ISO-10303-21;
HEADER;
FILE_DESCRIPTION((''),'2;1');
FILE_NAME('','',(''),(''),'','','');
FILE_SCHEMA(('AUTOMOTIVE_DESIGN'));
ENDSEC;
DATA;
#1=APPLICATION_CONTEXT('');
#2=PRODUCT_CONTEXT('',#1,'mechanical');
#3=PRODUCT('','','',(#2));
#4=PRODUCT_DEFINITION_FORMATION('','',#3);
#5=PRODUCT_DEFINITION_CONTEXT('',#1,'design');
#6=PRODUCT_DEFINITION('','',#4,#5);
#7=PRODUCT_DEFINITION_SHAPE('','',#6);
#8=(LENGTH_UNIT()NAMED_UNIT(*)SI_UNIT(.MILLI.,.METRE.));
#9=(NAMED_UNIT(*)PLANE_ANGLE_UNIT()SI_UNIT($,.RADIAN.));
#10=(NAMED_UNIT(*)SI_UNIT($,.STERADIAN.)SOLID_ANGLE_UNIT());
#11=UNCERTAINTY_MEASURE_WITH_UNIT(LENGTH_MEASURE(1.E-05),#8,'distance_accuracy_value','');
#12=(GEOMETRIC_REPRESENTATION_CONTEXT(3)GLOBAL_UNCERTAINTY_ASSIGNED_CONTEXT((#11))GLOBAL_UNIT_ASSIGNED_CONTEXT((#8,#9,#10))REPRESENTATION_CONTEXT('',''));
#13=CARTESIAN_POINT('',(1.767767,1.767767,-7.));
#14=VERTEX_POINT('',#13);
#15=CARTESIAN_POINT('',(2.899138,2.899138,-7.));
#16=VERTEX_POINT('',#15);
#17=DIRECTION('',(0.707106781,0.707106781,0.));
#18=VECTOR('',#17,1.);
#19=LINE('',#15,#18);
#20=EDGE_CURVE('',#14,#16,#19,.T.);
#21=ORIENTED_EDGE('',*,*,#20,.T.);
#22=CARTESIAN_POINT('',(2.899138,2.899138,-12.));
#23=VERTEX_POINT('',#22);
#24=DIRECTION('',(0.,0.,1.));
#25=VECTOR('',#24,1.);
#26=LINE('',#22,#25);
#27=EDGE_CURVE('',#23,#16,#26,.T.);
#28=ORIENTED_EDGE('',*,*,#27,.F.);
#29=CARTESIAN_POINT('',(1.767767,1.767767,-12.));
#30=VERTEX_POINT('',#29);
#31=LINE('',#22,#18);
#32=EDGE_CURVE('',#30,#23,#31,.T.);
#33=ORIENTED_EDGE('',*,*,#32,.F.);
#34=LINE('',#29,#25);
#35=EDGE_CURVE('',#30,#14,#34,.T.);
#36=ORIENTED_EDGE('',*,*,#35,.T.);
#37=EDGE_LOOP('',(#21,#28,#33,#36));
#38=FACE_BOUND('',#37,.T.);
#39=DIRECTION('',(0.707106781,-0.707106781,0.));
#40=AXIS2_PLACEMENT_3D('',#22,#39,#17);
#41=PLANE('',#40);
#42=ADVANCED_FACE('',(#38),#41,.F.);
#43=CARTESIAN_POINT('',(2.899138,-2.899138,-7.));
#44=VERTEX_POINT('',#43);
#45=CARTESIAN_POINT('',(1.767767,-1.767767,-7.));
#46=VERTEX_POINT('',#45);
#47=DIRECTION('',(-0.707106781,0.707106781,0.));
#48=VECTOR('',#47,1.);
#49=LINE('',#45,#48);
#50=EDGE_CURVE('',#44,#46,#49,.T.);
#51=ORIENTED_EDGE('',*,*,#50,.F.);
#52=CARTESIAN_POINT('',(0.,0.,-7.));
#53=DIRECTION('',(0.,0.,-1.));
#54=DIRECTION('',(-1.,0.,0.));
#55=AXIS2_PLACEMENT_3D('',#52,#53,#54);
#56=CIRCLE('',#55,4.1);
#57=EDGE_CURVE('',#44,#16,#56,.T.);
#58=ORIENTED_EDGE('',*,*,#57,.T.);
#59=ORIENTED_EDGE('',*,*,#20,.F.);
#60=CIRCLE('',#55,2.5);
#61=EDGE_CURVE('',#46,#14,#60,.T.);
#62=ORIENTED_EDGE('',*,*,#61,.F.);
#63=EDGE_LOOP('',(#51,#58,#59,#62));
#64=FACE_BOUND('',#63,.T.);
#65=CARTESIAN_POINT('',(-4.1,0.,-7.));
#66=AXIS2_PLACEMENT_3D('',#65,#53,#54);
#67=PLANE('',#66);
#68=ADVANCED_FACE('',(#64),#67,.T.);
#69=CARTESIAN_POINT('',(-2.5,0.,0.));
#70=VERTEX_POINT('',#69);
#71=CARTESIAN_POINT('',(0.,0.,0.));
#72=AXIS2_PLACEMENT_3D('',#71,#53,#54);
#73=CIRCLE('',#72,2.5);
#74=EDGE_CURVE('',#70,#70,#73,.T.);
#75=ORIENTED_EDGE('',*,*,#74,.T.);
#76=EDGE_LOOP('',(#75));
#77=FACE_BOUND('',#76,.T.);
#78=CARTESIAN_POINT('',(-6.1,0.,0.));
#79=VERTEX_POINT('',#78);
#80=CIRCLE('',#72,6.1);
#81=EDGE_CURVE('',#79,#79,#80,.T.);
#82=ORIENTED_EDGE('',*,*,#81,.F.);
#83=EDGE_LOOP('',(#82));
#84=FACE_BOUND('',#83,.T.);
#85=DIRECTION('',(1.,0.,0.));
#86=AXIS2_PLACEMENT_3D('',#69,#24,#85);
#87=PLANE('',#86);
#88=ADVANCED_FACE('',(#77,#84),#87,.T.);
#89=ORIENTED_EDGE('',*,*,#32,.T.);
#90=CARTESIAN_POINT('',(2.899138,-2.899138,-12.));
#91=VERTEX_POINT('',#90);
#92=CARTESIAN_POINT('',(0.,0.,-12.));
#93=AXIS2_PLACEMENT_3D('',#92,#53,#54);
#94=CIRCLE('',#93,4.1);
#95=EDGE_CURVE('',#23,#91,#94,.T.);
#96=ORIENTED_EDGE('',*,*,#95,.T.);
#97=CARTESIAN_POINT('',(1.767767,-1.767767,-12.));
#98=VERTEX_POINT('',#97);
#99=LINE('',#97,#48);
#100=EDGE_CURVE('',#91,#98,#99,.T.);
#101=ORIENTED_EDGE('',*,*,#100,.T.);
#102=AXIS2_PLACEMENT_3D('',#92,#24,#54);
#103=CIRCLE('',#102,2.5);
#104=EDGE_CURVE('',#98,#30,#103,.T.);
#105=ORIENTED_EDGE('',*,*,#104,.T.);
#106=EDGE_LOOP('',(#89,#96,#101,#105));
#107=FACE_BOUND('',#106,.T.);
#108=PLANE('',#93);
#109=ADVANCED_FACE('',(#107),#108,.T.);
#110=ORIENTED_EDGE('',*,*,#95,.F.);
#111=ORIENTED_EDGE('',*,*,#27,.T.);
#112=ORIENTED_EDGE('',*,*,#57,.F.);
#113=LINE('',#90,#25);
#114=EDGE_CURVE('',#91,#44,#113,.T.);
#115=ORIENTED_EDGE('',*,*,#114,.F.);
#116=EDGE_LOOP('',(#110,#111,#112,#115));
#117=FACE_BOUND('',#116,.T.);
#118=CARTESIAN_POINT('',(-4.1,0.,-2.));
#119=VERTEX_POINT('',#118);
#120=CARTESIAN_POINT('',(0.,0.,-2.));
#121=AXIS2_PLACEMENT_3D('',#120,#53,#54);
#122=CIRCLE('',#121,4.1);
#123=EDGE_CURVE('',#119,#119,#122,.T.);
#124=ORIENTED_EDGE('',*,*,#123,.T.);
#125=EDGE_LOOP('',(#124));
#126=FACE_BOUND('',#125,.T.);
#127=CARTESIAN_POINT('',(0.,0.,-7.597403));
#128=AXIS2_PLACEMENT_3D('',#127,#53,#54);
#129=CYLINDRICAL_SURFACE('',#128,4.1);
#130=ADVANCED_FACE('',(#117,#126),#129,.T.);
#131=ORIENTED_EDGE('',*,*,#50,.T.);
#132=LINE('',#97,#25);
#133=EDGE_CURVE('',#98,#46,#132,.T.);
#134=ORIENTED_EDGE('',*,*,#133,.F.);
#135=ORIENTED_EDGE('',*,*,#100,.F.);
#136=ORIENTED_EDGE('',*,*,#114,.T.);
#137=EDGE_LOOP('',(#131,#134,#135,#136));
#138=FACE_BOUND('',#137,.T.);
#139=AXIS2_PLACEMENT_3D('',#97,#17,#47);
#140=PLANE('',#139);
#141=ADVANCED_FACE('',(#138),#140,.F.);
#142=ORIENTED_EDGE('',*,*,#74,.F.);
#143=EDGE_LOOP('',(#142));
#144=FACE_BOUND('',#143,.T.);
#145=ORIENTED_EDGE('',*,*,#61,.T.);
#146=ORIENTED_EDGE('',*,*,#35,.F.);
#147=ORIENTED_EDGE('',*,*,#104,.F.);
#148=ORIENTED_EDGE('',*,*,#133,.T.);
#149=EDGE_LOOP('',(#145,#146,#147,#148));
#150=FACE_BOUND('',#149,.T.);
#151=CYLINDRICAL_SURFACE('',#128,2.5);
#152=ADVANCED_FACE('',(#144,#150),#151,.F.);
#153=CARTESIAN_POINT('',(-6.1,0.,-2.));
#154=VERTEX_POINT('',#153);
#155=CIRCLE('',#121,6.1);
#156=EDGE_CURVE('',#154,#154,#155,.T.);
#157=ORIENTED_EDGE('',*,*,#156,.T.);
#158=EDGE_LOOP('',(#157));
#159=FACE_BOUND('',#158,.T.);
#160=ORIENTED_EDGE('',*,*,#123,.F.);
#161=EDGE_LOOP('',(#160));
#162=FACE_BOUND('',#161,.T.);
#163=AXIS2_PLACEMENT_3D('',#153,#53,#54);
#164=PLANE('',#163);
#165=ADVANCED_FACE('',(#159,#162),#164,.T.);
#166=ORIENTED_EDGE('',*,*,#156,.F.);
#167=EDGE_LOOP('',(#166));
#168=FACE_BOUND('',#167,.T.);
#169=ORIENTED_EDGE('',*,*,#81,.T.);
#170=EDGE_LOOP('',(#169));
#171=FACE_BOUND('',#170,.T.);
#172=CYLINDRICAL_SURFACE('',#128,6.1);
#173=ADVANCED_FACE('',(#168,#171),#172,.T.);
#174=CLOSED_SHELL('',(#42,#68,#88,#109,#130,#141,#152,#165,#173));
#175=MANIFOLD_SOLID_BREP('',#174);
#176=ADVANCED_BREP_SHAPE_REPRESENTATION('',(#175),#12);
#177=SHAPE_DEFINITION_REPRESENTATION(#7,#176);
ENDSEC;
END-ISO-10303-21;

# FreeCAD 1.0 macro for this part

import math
import FreeCAD as App
import Part
import Sketcher

V = App.Vector
Q = App.Units.Quantity

doc = App.newDocument("Part")
body = doc.addObject("PartDesign::Body", "Body")

sketch1 = body.newObject("Sketcher::SketchObject", "Sketch")
sketch1.AttachmentSupport = (doc.getObject("XZ_Plane"), [""])
sketch1.MapMode = "FlatFace"
sketch1.addGeometry(Part.LineSegment(V(-6.1, 0, 0), V(-2.5, 0, 0)), False)
sketch1.addGeometry(Part.LineSegment(V(-2.5, 0, 0), V(-2.5, -7, 0)), False)
sketch1.addGeometry(Part.LineSegment(V(-2.5, -7, 0), V(-4.1, -7, 0)), False)
sketch1.addGeometry(Part.LineSegment(V(-4.1, -7, 0), V(-4.1, -2, 0)), False)
sketch1.addGeometry(Part.LineSegment(V(-4.1, -2, 0), V(-6.1, -2, 0)), False)
sketch1.addGeometry(Part.LineSegment(V(-6.1, -2, 0), V(-6.1, 0, 0)), False)
sketch1.addConstraint(Sketcher.Constraint("Coincident", 0, 2, 1, 1))
sketch1.addConstraint(Sketcher.Constraint("Coincident", 1, 2, 2, 1))
sketch1.addConstraint(Sketcher.Constraint("Coincident", 2, 2, 3, 1))
sketch1.addConstraint(Sketcher.Constraint("Coincident", 3, 2, 4, 1))
sketch1.addConstraint(Sketcher.Constraint("Coincident", 4, 2, 5, 1))
sketch1.addConstraint(Sketcher.Constraint("Coincident", 5, 2, 0, 1))
sketch1.addConstraint(Sketcher.Constraint("Horizontal", 0))
sketch1.addConstraint(Sketcher.Constraint("Vertical", 1))
sketch1.addConstraint(Sketcher.Constraint("Horizontal", 2))
sketch1.addConstraint(Sketcher.Constraint("Vertical", 3))
sketch1.addConstraint(Sketcher.Constraint("Horizontal", 4))
sketch1.addConstraint(Sketcher.Constraint("Vertical", 5))
sketch1.addConstraint(Sketcher.Constraint("PointOnObject", 0, 2, -1))
sketch1.addConstraint(Sketcher.Constraint("Equal", 4, 5))
sketch1.addConstraint(Sketcher.Constraint("DistanceX", 4, 2, 4, 1, Q("2 mm")))
sketch1.addConstraint(Sketcher.Constraint("DistanceY", 1, 2, 1, 1, Q("7 mm")))
sketch1.addConstraint(Sketcher.Constraint("DistanceX", 0, 1, 0, 2, Q("3.6 mm")))
sketch1.addConstraint(Sketcher.Constraint("DistanceX", 0, 2, -1, 1, Q("2.5 mm")))
revolution = body.newObject("PartDesign::Revolution", "Revolution")
revolution.Profile = sketch1
revolution.ReferenceAxis = (sketch1, ["V_Axis"])
revolution.Angle = 360

sketch2 = body.newObject("Sketcher::SketchObject", "Sketch001")
sketch2.AttachmentSupport = (doc.getObject("XY_Plane"), [""])
sketch2.MapMode = "FlatFace"
sketch2.AttachmentOffset = App.Placement(V(0, 0, -7), App.Rotation())
sketch2.addGeometry(Part.LineSegment(V(1.767767, 1.767767, 0), V(2.899138, 2.899138, 0)), False)
sketch2.addGeometry(Part.ArcOfCircle(Part.Circle(V(0, 0, 0), V(0, 0, 1), 4.1), math.radians(-45), math.radians(45)), False)
sketch2.addGeometry(Part.LineSegment(V(2.899138, -2.899138, 0), V(1.767767, -1.767767, 0)), False)
sketch2.addGeometry(Part.ArcOfCircle(Part.Circle(V(0, 0, 0), V(0, 0, 1), 2.5), math.radians(-45), math.radians(45)), False)
sketch2.addConstraint(Sketcher.Constraint("Coincident", 0, 2, 1, 2))
sketch2.addConstraint(Sketcher.Constraint("Coincident", 1, 1, 2, 1))
sketch2.addConstraint(Sketcher.Constraint("Coincident", 2, 2, 3, 1))
sketch2.addConstraint(Sketcher.Constraint("Coincident", 3, 2, 0, 1))
sketch2.addConstraint(Sketcher.Constraint("Coincident", 1, 3, -1, 1))
sketch2.addConstraint(Sketcher.Constraint("Coincident", 3, 3, -1, 1))
sketch2.addConstraint(Sketcher.Constraint("Perpendicular", 0, 2))
sketch2.addConstraint(Sketcher.Constraint("Vertical", 0, 2, 1, 1))
sketch2.addConstraint(Sketcher.Constraint("Vertical", 2, 2, 3, 2))
sketch2.addConstraint(Sketcher.Constraint("Radius", 1, Q("4.1 mm")))
sketch2.addConstraint(Sketcher.Constraint("Radius", 3, Q("2.5 mm")))
sketch2.addConstraint(Sketcher.Constraint("DistanceX", -1, 1, 0, 2, Q("2.899138 mm")))
pad1 = body.newObject("PartDesign::Pad", "Pad")
pad1.Profile = sketch2
pad1.Length = 5
pad1.Reversed = True

doc.recompute()
